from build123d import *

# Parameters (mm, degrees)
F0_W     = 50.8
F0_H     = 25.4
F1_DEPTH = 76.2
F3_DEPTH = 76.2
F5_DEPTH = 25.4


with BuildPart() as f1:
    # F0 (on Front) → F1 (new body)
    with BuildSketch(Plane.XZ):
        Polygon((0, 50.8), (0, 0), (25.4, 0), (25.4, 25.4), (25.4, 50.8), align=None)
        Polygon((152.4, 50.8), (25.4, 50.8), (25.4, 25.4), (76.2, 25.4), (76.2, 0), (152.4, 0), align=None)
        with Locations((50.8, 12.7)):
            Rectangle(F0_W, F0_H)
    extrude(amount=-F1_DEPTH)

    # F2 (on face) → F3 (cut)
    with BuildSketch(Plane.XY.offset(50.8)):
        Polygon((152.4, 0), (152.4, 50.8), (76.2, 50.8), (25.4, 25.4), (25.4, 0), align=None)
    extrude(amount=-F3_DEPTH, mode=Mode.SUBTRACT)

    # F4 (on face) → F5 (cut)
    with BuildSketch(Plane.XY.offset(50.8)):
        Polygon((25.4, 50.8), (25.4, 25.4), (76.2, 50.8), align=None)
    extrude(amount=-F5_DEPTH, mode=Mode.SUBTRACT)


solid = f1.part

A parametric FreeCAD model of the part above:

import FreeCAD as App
import Part
import Sketcher

V = App.Vector
Q = App.Units.Quantity


def add_polygon(sketch, points):
    """Adds a closed chain of lines whose ends are joined by coincident constraints."""
    first, n = sketch.GeometryCount, len(points)
    for a, b in zip(points, points[1:] + points[:1]):
        sketch.addGeometry(Part.LineSegment(App.Vector(*a, 0), App.Vector(*b, 0)), False)
    for i in range(n):
        sketch.addConstraint(Sketcher.Constraint("Coincident", first + i, 2, first + (i + 1) % n, 1))

doc = App.newDocument("Part")
body = doc.addObject("PartDesign::Body", "Body")

# Sketch on XZ plane
sketch1 = body.newObject("Sketcher::SketchObject", "Sketch")
sketch1.AttachmentSupport = (doc.getObject("XZ_Plane"), [""])
sketch1.MapMode = "FlatFace"
add_polygon(sketch1, [(0, 51), (0, 0), (152, 0), (152, 51)])  # lines 0-3
sketch1.addConstraint([
    Sketcher.Constraint("Vertical", 0),
    Sketcher.Constraint("Horizontal", 1),
    Sketcher.Constraint("Vertical", 2),
    Sketcher.Constraint("Horizontal", 3),
    Sketcher.Constraint("Coincident", 0, 2, -1, 1),
    Sketcher.Constraint("DistanceX", 1, 1, 1, 2, Q("6 in")),
    Sketcher.Constraint("DistanceY", 0, 2, 0, 1, Q("2 in")),
])
pad1 = body.newObject("PartDesign::Pad", "Pad")
pad1.Profile = sketch1
pad1.Length = Q("3 in")
pad1.Reversed = True

# Sketch on XY plane
sketch2 = body.newObject("Sketcher::SketchObject", "Sketch001")
sketch2.AttachmentSupport = (doc.getObject("XY_Plane"), [""])
sketch2.MapMode = "FlatFace"
sketch2.AttachmentOffset = App.Placement(V(0, 0, 2 * 25.4), App.Rotation())
add_polygon(sketch2, [(152, 0), (152, 51), (76, 51), (25, 25), (25, 0)])  # lines 0-4
sketch2.addConstraint([
    Sketcher.Constraint("Vertical", 0),
    Sketcher.Constraint("Horizontal", 1),
    Sketcher.Constraint("Vertical", 3),
    Sketcher.Constraint("Horizontal", 4),
    Sketcher.Constraint("PointOnObject", 3, 2, -1),
    Sketcher.Constraint("DistanceX", 1, 2, 1, 1, Q("3 in")),
    Sketcher.Constraint("DistanceX", 4, 1, 4, 2, Q("5 in")),
    Sketcher.Constraint("DistanceY", 0, 1, 0, 2, Q("2 in")),
    Sketcher.Constraint("DistanceY", 3, 2, 3, 1, Q("1 in")),
    Sketcher.Constraint("DistanceX", -1, 1, 0, 2, Q("6 in")),
])
pocket1 = body.newObject("PartDesign::Pocket", "Pocket")
pocket1.Profile = sketch2
pocket1.Length = Q("3 in")

# Sketch on XY plane
sketch3 = body.newObject("Sketcher::SketchObject", "Sketch002")
sketch3.AttachmentSupport = (doc.getObject("XY_Plane"), [""])
sketch3.MapMode = "FlatFace"
sketch3.AttachmentOffset = App.Placement(V(0, 0, 2 * 25.4), App.Rotation())
add_polygon(sketch3, [(25, 51), (25, 25), (76, 51)])  # lines 0-2
sketch3.addConstraint([
    Sketcher.Constraint("Vertical", 0),
    Sketcher.Constraint("Horizontal", 2),
    Sketcher.Constraint("DistanceX", 2, 2, 2, 1, Q("2 in")),
    Sketcher.Constraint("DistanceY", 0, 2, 0, 1, Q("1 in")),
    Sketcher.Constraint("DistanceX", -1, 1, 0, 2, Q("1 in")),
    Sketcher.Constraint("DistanceY", -1, 1, 0, 2, Q("1 in")),
])
pocket2 = body.newObject("PartDesign::Pocket", "Pocket001")
pocket2.Profile = sketch3
pocket2.Length = Q("1 in")

doc.recompute()
